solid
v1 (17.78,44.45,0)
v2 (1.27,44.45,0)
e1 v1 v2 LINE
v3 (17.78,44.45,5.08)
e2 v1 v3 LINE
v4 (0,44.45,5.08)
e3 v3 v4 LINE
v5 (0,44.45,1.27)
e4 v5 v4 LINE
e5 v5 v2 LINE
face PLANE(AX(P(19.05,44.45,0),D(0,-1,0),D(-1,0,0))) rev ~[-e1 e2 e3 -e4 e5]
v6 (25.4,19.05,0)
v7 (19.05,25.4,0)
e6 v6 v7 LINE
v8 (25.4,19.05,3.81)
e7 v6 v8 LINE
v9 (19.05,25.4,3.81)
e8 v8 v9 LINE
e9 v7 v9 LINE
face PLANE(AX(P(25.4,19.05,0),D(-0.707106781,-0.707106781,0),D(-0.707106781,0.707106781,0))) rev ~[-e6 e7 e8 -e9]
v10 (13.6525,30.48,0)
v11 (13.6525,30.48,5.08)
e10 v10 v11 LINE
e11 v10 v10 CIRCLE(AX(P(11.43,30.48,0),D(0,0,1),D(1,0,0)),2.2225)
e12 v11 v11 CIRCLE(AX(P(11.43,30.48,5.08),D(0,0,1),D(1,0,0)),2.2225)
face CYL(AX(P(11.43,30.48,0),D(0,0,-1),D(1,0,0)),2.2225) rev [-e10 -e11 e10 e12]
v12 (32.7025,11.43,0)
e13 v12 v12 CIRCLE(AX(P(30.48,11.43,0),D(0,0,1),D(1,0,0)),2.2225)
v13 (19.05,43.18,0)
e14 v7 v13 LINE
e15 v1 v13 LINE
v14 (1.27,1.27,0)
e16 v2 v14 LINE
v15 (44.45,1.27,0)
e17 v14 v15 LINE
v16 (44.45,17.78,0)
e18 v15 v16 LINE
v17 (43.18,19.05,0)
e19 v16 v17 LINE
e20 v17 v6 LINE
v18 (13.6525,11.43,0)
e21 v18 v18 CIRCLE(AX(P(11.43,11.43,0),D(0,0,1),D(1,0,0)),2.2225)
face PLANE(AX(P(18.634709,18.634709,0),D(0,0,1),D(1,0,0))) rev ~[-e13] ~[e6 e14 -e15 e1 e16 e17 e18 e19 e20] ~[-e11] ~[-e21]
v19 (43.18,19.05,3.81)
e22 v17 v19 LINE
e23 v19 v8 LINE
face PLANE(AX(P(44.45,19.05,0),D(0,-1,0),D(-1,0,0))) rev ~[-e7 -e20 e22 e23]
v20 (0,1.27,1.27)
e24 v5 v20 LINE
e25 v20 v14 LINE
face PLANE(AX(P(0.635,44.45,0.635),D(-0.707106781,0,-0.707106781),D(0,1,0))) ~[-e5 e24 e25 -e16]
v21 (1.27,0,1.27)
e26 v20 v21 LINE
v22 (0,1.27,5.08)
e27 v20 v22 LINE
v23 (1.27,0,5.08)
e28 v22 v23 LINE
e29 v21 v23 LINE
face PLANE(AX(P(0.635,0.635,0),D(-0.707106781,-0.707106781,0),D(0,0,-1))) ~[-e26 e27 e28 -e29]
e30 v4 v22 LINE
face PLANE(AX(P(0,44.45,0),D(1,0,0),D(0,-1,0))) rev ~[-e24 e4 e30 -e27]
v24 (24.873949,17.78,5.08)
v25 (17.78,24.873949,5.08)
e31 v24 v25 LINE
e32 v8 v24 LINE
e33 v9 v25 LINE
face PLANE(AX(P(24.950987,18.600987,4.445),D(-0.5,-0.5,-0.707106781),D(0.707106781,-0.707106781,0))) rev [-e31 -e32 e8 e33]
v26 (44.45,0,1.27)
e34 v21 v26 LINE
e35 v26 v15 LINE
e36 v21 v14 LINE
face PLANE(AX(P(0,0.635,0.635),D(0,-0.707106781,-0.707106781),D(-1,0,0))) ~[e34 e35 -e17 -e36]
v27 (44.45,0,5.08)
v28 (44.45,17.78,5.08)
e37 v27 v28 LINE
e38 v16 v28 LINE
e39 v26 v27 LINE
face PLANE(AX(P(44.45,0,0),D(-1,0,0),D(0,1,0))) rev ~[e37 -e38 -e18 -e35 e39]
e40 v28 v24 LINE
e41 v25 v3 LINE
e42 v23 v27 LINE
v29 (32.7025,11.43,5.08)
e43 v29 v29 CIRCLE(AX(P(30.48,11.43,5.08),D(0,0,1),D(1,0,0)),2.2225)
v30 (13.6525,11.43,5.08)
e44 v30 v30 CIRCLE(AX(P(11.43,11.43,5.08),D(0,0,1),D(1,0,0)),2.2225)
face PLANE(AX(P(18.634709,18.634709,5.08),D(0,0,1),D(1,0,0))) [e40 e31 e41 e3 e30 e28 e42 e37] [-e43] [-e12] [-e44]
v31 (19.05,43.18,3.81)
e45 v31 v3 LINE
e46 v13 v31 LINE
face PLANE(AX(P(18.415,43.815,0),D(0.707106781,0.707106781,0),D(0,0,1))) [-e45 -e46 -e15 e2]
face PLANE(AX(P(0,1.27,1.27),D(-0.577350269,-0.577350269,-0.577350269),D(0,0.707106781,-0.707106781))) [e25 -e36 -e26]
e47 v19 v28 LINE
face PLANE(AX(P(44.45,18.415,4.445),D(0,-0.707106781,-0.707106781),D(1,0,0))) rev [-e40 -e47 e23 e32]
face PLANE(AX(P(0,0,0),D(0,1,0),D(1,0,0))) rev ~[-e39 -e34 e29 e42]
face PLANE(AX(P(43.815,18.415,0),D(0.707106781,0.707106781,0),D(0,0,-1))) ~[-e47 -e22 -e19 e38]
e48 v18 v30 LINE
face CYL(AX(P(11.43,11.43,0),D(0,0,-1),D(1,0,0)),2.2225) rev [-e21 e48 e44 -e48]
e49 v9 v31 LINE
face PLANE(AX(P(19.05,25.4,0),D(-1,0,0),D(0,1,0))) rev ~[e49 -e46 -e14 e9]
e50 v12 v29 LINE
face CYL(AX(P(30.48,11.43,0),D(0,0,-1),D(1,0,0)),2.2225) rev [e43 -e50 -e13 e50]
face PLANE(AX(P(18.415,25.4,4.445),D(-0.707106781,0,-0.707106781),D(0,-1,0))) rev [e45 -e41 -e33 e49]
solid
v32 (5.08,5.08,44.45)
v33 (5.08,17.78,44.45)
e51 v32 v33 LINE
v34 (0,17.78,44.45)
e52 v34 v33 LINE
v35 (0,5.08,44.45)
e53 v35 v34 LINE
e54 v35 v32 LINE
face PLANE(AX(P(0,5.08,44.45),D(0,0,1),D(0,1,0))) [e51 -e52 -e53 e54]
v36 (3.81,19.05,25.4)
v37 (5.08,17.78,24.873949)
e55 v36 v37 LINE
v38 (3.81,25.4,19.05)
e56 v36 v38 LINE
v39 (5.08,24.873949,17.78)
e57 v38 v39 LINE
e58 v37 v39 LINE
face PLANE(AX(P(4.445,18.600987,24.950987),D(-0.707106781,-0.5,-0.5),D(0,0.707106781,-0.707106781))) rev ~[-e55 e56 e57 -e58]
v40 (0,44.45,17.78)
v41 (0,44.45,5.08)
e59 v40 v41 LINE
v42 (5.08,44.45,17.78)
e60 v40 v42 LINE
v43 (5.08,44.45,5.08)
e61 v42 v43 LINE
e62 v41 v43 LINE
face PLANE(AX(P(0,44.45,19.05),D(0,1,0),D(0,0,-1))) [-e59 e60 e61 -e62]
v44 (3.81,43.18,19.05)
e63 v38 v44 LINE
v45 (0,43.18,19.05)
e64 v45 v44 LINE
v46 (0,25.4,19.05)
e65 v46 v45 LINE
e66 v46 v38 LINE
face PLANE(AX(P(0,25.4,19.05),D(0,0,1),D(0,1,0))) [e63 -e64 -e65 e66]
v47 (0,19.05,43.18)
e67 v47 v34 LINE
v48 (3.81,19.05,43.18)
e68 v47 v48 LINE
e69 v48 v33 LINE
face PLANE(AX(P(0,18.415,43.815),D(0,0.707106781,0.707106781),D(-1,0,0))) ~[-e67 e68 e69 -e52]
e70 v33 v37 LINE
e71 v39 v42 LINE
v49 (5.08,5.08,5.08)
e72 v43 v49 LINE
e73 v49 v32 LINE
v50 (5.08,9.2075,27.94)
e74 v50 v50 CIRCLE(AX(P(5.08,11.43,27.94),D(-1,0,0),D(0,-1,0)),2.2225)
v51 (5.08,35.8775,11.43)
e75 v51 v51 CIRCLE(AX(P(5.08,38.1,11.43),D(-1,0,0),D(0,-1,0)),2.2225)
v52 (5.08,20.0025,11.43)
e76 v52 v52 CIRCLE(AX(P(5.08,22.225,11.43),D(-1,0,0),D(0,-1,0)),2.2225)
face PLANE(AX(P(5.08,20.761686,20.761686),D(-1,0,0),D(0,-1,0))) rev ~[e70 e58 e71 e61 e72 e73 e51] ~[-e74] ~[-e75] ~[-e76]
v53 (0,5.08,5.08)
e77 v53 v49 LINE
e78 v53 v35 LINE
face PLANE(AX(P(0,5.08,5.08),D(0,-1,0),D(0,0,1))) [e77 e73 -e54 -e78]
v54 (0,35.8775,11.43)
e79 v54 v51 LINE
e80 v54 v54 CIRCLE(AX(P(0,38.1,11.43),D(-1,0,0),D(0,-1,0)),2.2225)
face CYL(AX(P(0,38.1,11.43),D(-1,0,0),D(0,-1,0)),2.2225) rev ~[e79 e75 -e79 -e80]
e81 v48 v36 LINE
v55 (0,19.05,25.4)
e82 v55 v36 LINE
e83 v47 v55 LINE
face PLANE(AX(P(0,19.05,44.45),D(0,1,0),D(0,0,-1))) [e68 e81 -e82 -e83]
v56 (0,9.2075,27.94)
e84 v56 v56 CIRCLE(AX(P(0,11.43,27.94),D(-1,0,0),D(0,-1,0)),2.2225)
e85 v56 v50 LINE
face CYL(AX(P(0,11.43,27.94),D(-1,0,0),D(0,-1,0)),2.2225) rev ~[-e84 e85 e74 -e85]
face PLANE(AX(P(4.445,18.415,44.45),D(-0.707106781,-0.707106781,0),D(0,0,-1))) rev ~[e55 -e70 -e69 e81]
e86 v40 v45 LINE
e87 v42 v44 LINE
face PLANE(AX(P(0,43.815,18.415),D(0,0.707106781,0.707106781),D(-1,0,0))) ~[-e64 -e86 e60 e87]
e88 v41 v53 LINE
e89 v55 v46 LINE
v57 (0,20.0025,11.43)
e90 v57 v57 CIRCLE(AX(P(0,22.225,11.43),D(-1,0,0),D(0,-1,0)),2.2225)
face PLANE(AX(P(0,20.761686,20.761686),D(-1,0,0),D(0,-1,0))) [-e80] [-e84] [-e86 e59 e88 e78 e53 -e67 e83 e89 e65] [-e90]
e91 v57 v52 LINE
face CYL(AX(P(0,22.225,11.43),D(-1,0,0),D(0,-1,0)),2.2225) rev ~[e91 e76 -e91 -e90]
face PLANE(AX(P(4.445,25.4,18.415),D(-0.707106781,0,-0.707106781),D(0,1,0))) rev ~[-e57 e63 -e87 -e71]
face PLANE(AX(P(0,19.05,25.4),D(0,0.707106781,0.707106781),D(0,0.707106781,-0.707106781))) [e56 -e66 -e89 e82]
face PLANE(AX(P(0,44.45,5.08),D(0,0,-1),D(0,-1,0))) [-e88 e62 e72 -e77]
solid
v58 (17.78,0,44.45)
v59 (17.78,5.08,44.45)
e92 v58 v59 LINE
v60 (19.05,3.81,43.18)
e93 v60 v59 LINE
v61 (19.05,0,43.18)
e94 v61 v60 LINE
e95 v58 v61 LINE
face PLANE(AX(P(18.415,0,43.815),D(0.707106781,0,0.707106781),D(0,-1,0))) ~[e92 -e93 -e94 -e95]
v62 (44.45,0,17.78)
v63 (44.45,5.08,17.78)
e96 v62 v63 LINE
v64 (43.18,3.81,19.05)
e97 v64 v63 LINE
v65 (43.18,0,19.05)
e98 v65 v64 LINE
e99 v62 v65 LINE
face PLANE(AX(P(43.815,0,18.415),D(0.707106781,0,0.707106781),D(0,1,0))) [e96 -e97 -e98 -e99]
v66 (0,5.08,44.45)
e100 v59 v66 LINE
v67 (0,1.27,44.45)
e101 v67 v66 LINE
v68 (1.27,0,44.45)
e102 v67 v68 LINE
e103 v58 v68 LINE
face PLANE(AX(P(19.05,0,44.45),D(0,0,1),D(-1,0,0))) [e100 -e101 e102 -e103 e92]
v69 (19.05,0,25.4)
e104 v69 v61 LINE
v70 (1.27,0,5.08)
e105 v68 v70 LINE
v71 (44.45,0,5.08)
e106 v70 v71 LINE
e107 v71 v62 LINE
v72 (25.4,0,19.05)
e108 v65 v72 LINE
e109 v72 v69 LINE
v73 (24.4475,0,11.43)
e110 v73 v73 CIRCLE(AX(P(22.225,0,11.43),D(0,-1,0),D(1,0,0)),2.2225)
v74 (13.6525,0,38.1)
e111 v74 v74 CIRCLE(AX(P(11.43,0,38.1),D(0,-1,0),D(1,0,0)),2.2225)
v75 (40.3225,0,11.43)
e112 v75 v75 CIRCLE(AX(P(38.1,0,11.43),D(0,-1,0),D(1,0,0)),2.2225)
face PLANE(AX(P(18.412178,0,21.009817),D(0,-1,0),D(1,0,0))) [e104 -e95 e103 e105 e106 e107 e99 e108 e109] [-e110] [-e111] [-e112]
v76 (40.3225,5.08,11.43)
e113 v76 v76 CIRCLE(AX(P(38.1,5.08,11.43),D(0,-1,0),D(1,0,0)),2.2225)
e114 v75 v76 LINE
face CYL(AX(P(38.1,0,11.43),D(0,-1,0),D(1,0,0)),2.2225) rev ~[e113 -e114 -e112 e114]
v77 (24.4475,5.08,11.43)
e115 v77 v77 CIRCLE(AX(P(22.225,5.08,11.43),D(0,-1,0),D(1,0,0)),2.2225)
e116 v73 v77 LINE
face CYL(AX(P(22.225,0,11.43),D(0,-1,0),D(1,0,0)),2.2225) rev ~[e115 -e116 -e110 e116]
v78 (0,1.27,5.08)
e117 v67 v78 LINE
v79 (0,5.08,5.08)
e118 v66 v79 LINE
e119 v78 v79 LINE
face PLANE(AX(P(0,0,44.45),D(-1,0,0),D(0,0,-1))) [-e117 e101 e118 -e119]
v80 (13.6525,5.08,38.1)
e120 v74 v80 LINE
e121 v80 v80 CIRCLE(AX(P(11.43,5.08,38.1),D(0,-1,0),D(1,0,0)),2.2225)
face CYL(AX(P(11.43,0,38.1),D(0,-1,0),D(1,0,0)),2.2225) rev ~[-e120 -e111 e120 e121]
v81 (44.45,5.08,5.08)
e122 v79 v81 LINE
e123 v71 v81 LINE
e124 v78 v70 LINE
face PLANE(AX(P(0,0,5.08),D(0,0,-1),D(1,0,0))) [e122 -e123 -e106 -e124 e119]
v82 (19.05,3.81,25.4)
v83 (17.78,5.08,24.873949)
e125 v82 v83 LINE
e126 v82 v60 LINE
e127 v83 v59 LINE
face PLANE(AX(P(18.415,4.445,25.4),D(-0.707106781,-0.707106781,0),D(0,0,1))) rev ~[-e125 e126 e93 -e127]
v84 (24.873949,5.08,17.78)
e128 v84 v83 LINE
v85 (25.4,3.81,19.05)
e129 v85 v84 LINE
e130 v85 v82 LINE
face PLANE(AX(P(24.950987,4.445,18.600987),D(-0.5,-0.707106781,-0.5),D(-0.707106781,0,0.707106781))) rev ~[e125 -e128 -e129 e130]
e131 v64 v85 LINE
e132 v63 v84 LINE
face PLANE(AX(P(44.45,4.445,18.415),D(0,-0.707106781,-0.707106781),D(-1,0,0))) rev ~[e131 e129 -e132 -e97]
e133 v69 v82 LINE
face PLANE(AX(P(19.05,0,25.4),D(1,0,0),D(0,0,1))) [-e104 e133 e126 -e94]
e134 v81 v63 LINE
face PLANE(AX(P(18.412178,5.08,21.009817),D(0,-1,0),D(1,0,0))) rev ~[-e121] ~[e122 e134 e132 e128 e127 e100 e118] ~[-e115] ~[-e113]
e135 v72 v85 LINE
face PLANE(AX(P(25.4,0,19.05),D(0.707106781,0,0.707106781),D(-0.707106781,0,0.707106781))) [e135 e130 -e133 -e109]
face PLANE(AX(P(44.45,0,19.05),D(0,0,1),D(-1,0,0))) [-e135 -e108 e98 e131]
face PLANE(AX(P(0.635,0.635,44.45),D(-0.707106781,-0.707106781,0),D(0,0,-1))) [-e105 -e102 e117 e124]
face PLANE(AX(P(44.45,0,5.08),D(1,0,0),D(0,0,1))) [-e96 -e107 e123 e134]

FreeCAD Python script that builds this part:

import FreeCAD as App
import Part
import Sketcher

V = App.Vector
Q = App.Units.Quantity


def edges_at(feature, points):
    """Names of the edges that pass closest to the given points."""
    edges = feature.Shape.Edges
    near = lambda p: min(range(len(edges)), key=lambda i: edges[i].distToShape(Part.Vertex(*p))[0])
    return sorted({f"Edge{near(p) + 1}" for p in points})


def add_polygon(sketch, points):
    """Adds a closed chain of lines whose ends are joined by coincident constraints."""
    first, n = sketch.GeometryCount, len(points)
    for a, b in zip(points, points[1:] + points[:1]):
        sketch.addGeometry(Part.LineSegment(App.Vector(*a, 0), App.Vector(*b, 0)), False)
    for i in range(n):
        sketch.addConstraint(Sketcher.Constraint("Coincident", first + i, 2, first + (i + 1) % n, 1))

doc = App.newDocument("Part")
params = doc.addObject("Spreadsheet::Sheet", "Params")
for row, (alias, value) in enumerate([
    ("sketch1_diameter", "0.175 in"),
    ("sketch1_width", "1.75 in"),
    ("pad1_length", "0.2 in"),
    ("chamfer_size", "0.05 in"),
    ("sketch2_diameter", "0.175 in"),
    ("sketch2_width", "1.75 in"),
    ("sketch2_height", "1.55 in"),
    ("pad2_length", "0.2 in"),
    ("chamfer2_size", "0.05 in"),
    ("sketch3_diameter", "0.175 in"),
    ("sketch3_width", "1.55 in"),
    ("sketch3_width2", "0.75 in"),
    ("pad3_length", "0.2 in"),
    ("chamfer3_size", "0.05 in"),
], start=1):
    params.set(f"A{row}", alias)
    params.set(f"B{row}", "=" + value)
    params.setAlias(f"B{row}", alias)

body = doc.addObject("PartDesign::Body", "Body")

# Sketch on XY plane
sketch1 = body.newObject("Sketcher::SketchObject", "Sketch")
sketch1.AttachmentSupport = (doc.getObject("XY_Plane"), [""])
sketch1.MapMode = "FlatFace"
add_polygon(sketch1, [(0, 44.5), (0, 0), (44.5, 0), (44.5, 19.1), (25.4, 19.1), (19.1, 25.4), (19.1, 44.5)])  # lines 0-6
sketch1.addGeometry(Part.Circle(V(11.4, 11.4, 0), V(0, 0, 1), 2.2), False)  # 7
sketch1.addGeometry(Part.Circle(V(30.5, 11.4, 0), V(0, 0, 1), 2.2), False)  # 8
sketch1.addGeometry(Part.Circle(V(11.4, 30.5, 0), V(0, 0, 1), 2.2), False)  # 9
sketch1.addConstraint([
    Sketcher.Constraint("Vertical", 0),
    Sketcher.Constraint("Horizontal", 1),
    Sketcher.Constraint("Vertical", 2),
    Sketcher.Constraint("Horizontal", 3),
    Sketcher.Constraint("Vertical", 5),
    Sketcher.Constraint("Horizontal", 6),
    Sketcher.Constraint("Coincident", 0, 2, -1, 1),
    Sketcher.Constraint("Equal", 7, 8),
    Sketcher.Constraint("Equal", 8, 9),
    Sketcher.Constraint("Horizontal", 7, 3, 8, 3),
    Sketcher.Constraint("Vertical", 7, 3, 9, 3),
    Sketcher.Constraint("Equal", 3, 6),
    Sketcher.Constraint("Equal", 1, 0),
    Sketcher.Constraint("Equal", 6, 2),
    Sketcher.Constraint("Equal", 2, 5),
    Sketcher.Constraint("Diameter", 7, Q("0.175 in")),
    Sketcher.Constraint("DistanceX", -1, 1, 3, 2, Q("1 in")),
    Sketcher.Constraint("DistanceX", 1, 1, 1, 2, Q("1.75 in")),
    Sketcher.Constraint("DistanceX", -1, 1, 8, 3, Q("1.2 in")),
    Sketcher.Constraint("DistanceY", -1, 1, 9, 3, Q("1.2 in")),
    Sketcher.Constraint("DistanceX", 7, 3, 1, 2, Q("1.3 in")),
    Sketcher.Constraint("DistanceY", 8, 3, 2, 2, Q("0.3 in")),
])
sketch1.setExpression("Constraints[22]", "Params.sketch1_diameter")
sketch1.setExpression("Constraints[24]", "Params.sketch1_width")
pad1 = body.newObject("PartDesign::Pad", "Pad")
pad1.Profile = sketch1
pad1.setExpression("Length", "Params.pad1_length")
doc.recompute()

chamfer = body.newObject("PartDesign::Chamfer", "Chamfer")
chamfer.Base = (pad1, edges_at(pad1, [
    (19.05, 34.925, 5.08),
    (19.05, 44.45, 2.54),
    (34.925, 19.05, 5.08),
    (22.225, 22.225, 5.08),
    (44.45, 19.05, 2.54),
    (22.225, 0, 0),
    (0, 0, 2.54),
    (0, 22.225, 0),
]))
chamfer.setExpression("Size", "Params.chamfer_size")
body2 = doc.addObject("PartDesign::Body", "Body001")

# Sketch on XZ plane
sketch2 = body2.newObject("Sketcher::SketchObject", "Sketch001")
sketch2.AttachmentSupport = (doc.getObject("XZ_Plane001"), [""])
sketch2.MapMode = "FlatFace"
add_polygon(sketch2, [(0, 44.5), (0, 5.1), (44.5, 5.1), (44.5, 19.1), (25.4, 19.1), (19.1, 25.4), (19.1, 44.5)])  # lines 0-6
sketch2.addGeometry(Part.Circle(V(22.2, 11.4, 0), V(0, 0, 1), 2.2), False)  # 7
sketch2.addGeometry(Part.Circle(V(38.1, 11.4, 0), V(0, 0, 1), 2.2), False)  # 8
sketch2.addGeometry(Part.Circle(V(11.4, 38.1, 0), V(0, 0, 1), 2.2), False)  # 9
sketch2.addConstraint([
    Sketcher.Constraint("Vertical", 0),
    Sketcher.Constraint("Horizontal", 1),
    Sketcher.Constraint("Vertical", 2),
    Sketcher.Constraint("Horizontal", 3),
    Sketcher.Constraint("Vertical", 5),
    Sketcher.Constraint("Horizontal", 6),
    Sketcher.Constraint("Equal", 7, 8),
    Sketcher.Constraint("Equal", 8, 9),
    Sketcher.Constraint("PointOnObject", 0, 2, -2),
    Sketcher.Constraint("Horizontal", 7, 3, 8, 3),
    Sketcher.Constraint("Equal", 3, 6),
    Sketcher.Constraint("Equal", 6, 5),
    Sketcher.Constraint("Diameter", 7, Q("0.175 in")),
    Sketcher.Constraint("DistanceX", -1, 1, 3, 2, Q("1 in")),
    Sketcher.Constraint("DistanceY", -1, 1, 4, 2, Q("1 in")),
    Sketcher.Constraint("Angle", 4, Q("135 deg")),
    Sketcher.Constraint("DistanceX", 1, 1, 1, 2, Q("1.75 in")),
    Sketcher.Constraint("DistanceY", 0, 2, 0, 1, Q("1.55 in")),
    Sketcher.Constraint("DistanceX", -1, 1, 8, 3, Q("1.5 in")),
    Sketcher.Constraint("DistanceY", -1, 1, 9, 3, Q("1.5 in")),
    Sketcher.Constraint("DistanceX", 9, 3, 1, 2, Q("1.3 in")),
    Sketcher.Constraint("DistanceY", 8, 3, 2, 2, Q("0.3 in")),
    Sketcher.Constraint("DistanceX", -1, 1, 7, 3, Q("0.875 in")),
])
sketch2.setExpression("Constraints[19]", "Params.sketch2_diameter")
sketch2.setExpression("Constraints[23]", "Params.sketch2_width")
sketch2.setExpression("Constraints[24]", "Params.sketch2_height")
pad2 = body2.newObject("PartDesign::Pad", "Pad001")
pad2.Profile = sketch2
pad2.setExpression("Length", "Params.pad2_length")
pad2.Reversed = True
doc.recompute()

chamfer2 = body2.newObject("PartDesign::Chamfer", "Chamfer001")
chamfer2.Base = (pad2, edges_at(pad2, [
    (19.05, 5.08, 34.925),
    (22.225, 5.08, 22.225),
    (34.925, 5.08, 19.05),
    (44.45, 2.54, 19.05),
    (19.05, 2.54, 44.45),
    (0, 0, 24.765),
]))
chamfer2.setExpression("Size", "Params.chamfer2_size")
body3 = doc.addObject("PartDesign::Body", "Body002")

# Sketch on YZ plane
sketch3 = body3.newObject("Sketcher::SketchObject", "Sketch002")
sketch3.AttachmentSupport = (doc.getObject("YZ_Plane002"), [""])
sketch3.MapMode = "FlatFace"
add_polygon(sketch3, [(44.5, 19.1), (44.5, 5.1), (5.1, 5.1), (5.1, 44.5), (19.1, 44.5), (19.1, 25.4), (25.4, 19.1)])  # lines 0-6
sketch3.addGeometry(Part.Circle(V(38.1, 11.4, 0), V(0, 0, 1), 2.2), False)  # 7
sketch3.addGeometry(Part.Circle(V(22.2, 11.4, 0), V(0, 0, 1), 2.2), False)  # 8
sketch3.addGeometry(Part.Circle(V(11.4, 27.9, 0), V(0, 0, 1), 2.2), False)  # 9
sketch3.addConstraint([
    Sketcher.Constraint("Vertical", 0),
    Sketcher.Constraint("Horizontal", 1),
    Sketcher.Constraint("Vertical", 2),
    Sketcher.Constraint("Horizontal", 3),
    Sketcher.Constraint("Vertical", 4),
    Sketcher.Constraint("Horizontal", 6),
    Sketcher.Constraint("Equal", 7, 8),
    Sketcher.Constraint("Equal", 8, 9),
    Sketcher.Constraint("Horizontal", 7, 3, 8, 3),
    Sketcher.Constraint("Equal", 3, 0),
    Sketcher.Constraint("Equal", 1, 2),
    Sketcher.Constraint("Equal", 6, 4),
    Sketcher.Constraint("Diameter", 7, Q("0.175 in")),
    Sketcher.Constraint("DistanceY", -1, 1, 4, 2, Q("1 in")),
    Sketcher.Constraint("DistanceX", -1, 1, 5, 2, Q("1 in")),
    Sketcher.Constraint("DistanceX", 4, 2, 6, 2, Q("1 in")),
    Sketcher.Constraint("DistanceX", 1, 2, 1, 1, Q("1.55 in")),
    Sketcher.Constraint("DistanceX", 6, 1, 6, 2, Q("0.75 in")),
    Sketcher.Constraint("DistanceX", -1, 1, 7, 3, Q("1.5 in")),
    Sketcher.Constraint("DistanceY", -1, 1, 9, 3, Q("1.1 in")),
    Sketcher.Constraint("DistanceX", 9, 3, 0, 2, Q("1.3 in")),
    Sketcher.Constraint("DistanceY", 8, 3, 2, 2, Q("1.3 in")),
    Sketcher.Constraint("DistanceX", -1, 1, 8, 3, Q("0.875 in")),
])
sketch3.setExpression("Constraints[19]", "Params.sketch3_diameter")
sketch3.setExpression("Constraints[23]", "Params.sketch3_width")
sketch3.setExpression("Constraints[24]", "Params.sketch3_width2")
pad3 = body3.newObject("PartDesign::Pad", "Pad002")
pad3.Profile = sketch3
pad3.setExpression("Length", "Params.pad3_length")
doc.recompute()

chamfer3 = body3.newObject("PartDesign::Chamfer", "Chamfer002")
chamfer3.Base = (pad3, edges_at(pad3, [
    (2.54, 44.45, 19.05),
    (5.08, 34.925, 19.05),
    (5.08, 19.05, 34.925),
    (5.08, 22.225, 22.225),
    (2.54, 19.05, 44.45),
]))
chamfer3.setExpression("Size", "Params.chamfer3_size")

doc.recompute()
